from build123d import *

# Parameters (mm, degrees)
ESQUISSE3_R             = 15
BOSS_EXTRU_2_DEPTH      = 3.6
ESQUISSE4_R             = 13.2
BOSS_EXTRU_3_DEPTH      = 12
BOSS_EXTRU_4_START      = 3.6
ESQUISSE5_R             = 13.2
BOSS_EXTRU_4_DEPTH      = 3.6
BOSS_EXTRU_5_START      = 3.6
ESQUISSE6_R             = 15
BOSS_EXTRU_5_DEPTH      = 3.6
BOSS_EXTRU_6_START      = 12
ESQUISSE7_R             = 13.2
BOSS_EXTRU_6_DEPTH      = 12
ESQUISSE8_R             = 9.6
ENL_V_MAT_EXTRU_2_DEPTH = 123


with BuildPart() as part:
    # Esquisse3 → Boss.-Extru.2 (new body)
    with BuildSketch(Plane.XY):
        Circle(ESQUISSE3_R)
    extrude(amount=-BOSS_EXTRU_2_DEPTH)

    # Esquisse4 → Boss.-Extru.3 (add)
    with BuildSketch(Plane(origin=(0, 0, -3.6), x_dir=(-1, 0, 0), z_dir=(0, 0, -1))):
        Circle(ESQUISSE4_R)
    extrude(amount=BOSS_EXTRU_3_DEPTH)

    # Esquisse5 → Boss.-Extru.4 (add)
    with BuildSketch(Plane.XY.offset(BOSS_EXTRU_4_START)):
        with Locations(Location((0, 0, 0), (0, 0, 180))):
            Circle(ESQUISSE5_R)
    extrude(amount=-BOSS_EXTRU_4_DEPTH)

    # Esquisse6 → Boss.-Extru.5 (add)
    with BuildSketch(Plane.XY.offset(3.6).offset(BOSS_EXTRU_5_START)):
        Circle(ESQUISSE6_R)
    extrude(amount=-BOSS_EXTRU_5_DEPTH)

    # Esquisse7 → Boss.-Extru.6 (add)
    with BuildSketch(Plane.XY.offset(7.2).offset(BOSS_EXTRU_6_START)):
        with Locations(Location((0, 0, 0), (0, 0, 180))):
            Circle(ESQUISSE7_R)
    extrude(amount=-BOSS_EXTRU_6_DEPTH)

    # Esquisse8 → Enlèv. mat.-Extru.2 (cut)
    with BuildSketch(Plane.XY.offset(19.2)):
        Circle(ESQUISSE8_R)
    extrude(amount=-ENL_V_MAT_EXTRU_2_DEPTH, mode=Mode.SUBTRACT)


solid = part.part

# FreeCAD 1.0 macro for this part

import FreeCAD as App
import Part
import Sketcher
from FreeCAD import Vector

doc = App.newDocument("Part")
body = doc.addObject("PartDesign::Body", "Body")

# Sketch on XY plane
sketch1 = body.newObject("Sketcher::SketchObject", "Sketch")
sketch1.AttachmentSupport = (doc.getObject("XY_Plane"), [""])
sketch1.MapMode = "FlatFace"
sketch1.addGeometry(Part.Circle(Vector(0, 0, 0), Vector(0, 0, 1), 15), False)
sketch1.addConstraint(Sketcher.Constraint("Coincident", 0, 3, -1, 1))
sketch1.addConstraint(Sketcher.Constraint("Diameter", 0, 30.0))
pad1 = body.newObject("PartDesign::Pad", "Pad")
pad1.Profile = sketch1
pad1.Length = 3.6
pad1.Reversed = True

# Sketch on XY plane
sketch2 = body.newObject("Sketcher::SketchObject", "Sketch001")
sketch2.AttachmentSupport = (doc.getObject("XY_Plane"), [""])
sketch2.MapMode = "FlatFace"
sketch2.AttachmentOffset = App.Placement(Vector(0, 0, -3.6), App.Rotation())
sketch2.addGeometry(Part.Circle(Vector(0, 0, 0), Vector(0, 0, 1), 13), False)
sketch2.addConstraint(Sketcher.Constraint("Coincident", 0, 3, -1, 1))
sketch2.addConstraint(Sketcher.Constraint("Diameter", 0, 26.4))
pad2 = body.newObject("PartDesign::Pad", "Pad001")
pad2.Profile = sketch2
pad2.Length = 12
pad2.Reversed = True

# Sketch on XY plane
sketch3 = body.newObject("Sketcher::SketchObject", "Sketch002")
sketch3.AttachmentSupport = (doc.getObject("XY_Plane"), [""])
sketch3.MapMode = "FlatFace"
sketch3.AttachmentOffset = App.Placement(Vector(0, 0, 3.6), App.Rotation())
sketch3.addGeometry(Part.Circle(Vector(0, 0, 0), Vector(0, 0, 1), 13), False)
sketch3.addConstraint(Sketcher.Constraint("Coincident", 0, 3, -1, 1))
sketch3.addConstraint(Sketcher.Constraint("Diameter", 0, 26.4))
pad3 = body.newObject("PartDesign::Pad", "Pad002")
pad3.Profile = sketch3
pad3.Length = 3.6
pad3.Reversed = True

# Sketch on XY plane
sketch4 = body.newObject("Sketcher::SketchObject", "Sketch003")
sketch4.AttachmentSupport = (doc.getObject("XY_Plane"), [""])
sketch4.MapMode = "FlatFace"
sketch4.AttachmentOffset = App.Placement(Vector(0, 0, 7.2), App.Rotation())
sketch4.addGeometry(Part.Circle(Vector(0, 0, 0), Vector(0, 0, 1), 15), False)
sketch4.addConstraint(Sketcher.Constraint("Coincident", 0, 3, -1, 1))
sketch4.addConstraint(Sketcher.Constraint("Diameter", 0, 30.0))
pad4 = body.newObject("PartDesign::Pad", "Pad003")
pad4.Profile = sketch4
pad4.Length = 3.6
pad4.Reversed = True

# Sketch on XY plane
sketch5 = body.newObject("Sketcher::SketchObject", "Sketch004")
sketch5.AttachmentSupport = (doc.getObject("XY_Plane"), [""])
sketch5.MapMode = "FlatFace"
sketch5.AttachmentOffset = App.Placement(Vector(0, 0, 19.2), App.Rotation())
sketch5.addGeometry(Part.Circle(Vector(0, 0, 0), Vector(0, 0, 1), 13), False)
sketch5.addConstraint(Sketcher.Constraint("Coincident", 0, 3, -1, 1))
sketch5.addConstraint(Sketcher.Constraint("Diameter", 0, 26.4))
pad5 = body.newObject("PartDesign::Pad", "Pad004")
pad5.Profile = sketch5
pad5.Length = 12
pad5.Reversed = True

# Sketch on XY plane
sketch6 = body.newObject("Sketcher::SketchObject", "Sketch005")
sketch6.AttachmentSupport = (doc.getObject("XY_Plane"), [""])
sketch6.MapMode = "FlatFace"
sketch6.AttachmentOffset = App.Placement(Vector(0, 0, 19.2), App.Rotation())
sketch6.addGeometry(Part.Circle(Vector(0, 0, 0), Vector(0, 0, 1), 10), False)
sketch6.addConstraint(Sketcher.Constraint("Coincident", 0, 3, -1, 1))
sketch6.addConstraint(Sketcher.Constraint("Diameter", 0, 19.2))
pocket1 = body.newObject("PartDesign::Pocket", "Pocket")
pocket1.Profile = sketch6
pocket1.Length = 123

doc.recompute()
